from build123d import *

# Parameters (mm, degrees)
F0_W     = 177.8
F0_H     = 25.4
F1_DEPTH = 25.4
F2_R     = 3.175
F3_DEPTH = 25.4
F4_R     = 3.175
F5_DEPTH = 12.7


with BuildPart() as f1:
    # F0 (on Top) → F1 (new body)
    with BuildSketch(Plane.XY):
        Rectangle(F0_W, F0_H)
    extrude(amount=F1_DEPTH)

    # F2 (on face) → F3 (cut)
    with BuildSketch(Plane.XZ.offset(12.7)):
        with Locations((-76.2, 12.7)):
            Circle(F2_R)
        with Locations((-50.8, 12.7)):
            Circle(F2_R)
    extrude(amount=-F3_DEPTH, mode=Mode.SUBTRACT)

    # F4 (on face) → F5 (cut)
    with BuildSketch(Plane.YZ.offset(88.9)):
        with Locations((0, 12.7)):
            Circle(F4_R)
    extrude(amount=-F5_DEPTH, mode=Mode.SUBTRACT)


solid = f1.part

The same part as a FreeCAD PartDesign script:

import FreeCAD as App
import Part
import Sketcher
Q = App.Units.Quantity


def add_polygon(sketch, points):
    """Adds a closed chain of lines whose ends are joined by coincident constraints."""
    first, n = sketch.GeometryCount, len(points)
    for a, b in zip(points, points[1:] + points[:1]):
        sketch.addGeometry(Part.LineSegment(App.Vector(*a, 0), App.Vector(*b, 0)), False)
    for i in range(n):
        sketch.addConstraint(Sketcher.Constraint("Coincident", first + i, 2, first + (i + 1) % n, 1))

doc = App.newDocument("Part")
body = doc.addObject("PartDesign::Body", "Body")

sketch1 = doc.addObject("Sketcher::SketchObject", "Sketch")
body.addObject(sketch1)
sketch1.AttachmentSupport = (doc.XY_Plane, [""])
sketch1.MapMode = "FlatFace"
add_polygon(sketch1, [(-89, 13), (-89, -13), (89, -13), (89, 13)])
sketch1.addConstraint([
    Sketcher.Constraint("Vertical", 0),
    Sketcher.Constraint("Horizontal", 1),
    Sketcher.Constraint("Vertical", 2),
    Sketcher.Constraint("Horizontal", 3),
    Sketcher.Constraint("Symmetric", 0, 2, 2, 2, -1, 1),
    Sketcher.Constraint("DistanceX", 1, 1, 1, 2, Q("7 in")),
    Sketcher.Constraint("DistanceY", 0, 2, 0, 1, Q("1 in")),
])
pad1 = doc.addObject("PartDesign::Pad", "Pad")
body.addObject(pad1)
pad1.Profile = sketch1
pad1.Length = Q("1 in")

sketch2 = doc.addObject("Sketcher::SketchObject", "Sketch001")
body.addObject(sketch2)
sketch2.AttachmentSupport = (doc.XZ_Plane, [""])
sketch2.MapMode = "FlatFace"
sketch2.AttachmentOffset = App.Placement(App.Vector(0, 0, 0.5 * 25.4), App.Rotation())
sketch2.addGeometry([
    Part.Circle(App.Vector(-76.2, 12.7, 0), App.Vector(0, 0, 1), 3.2),
    Part.Circle(App.Vector(-50.8, 12.7, 0), App.Vector(0, 0, 1), 3.2),
], False)
sketch2.addConstraint([
    Sketcher.Constraint("Equal", 0, 1),
    Sketcher.Constraint("Horizontal", 0, 3, 1, 3),
    Sketcher.Constraint("Diameter", 0, Q("0.25 in")),
    Sketcher.Constraint("DistanceX", 0, 3, -1, 1, Q("3 in")),
    Sketcher.Constraint("DistanceX", 1, 3, -1, 1, Q("2 in")),
    Sketcher.Constraint("DistanceY", -1, 1, 0, 3, Q("0.5 in")),
])
pocket1 = doc.addObject("PartDesign::Pocket", "Pocket")
body.addObject(pocket1)
pocket1.Profile = sketch2
pocket1.Length = Q("1 in")

sketch3 = doc.addObject("Sketcher::SketchObject", "Sketch002")
body.addObject(sketch3)
sketch3.AttachmentSupport = (doc.YZ_Plane, [""])
sketch3.MapMode = "FlatFace"
sketch3.AttachmentOffset = App.Placement(App.Vector(0, 0, 3.5 * 25.4), App.Rotation())
sketch3.addGeometry(Part.Circle(App.Vector(0, 12.7, 0), App.Vector(0, 0, 1), 3.2), False)
sketch3.addConstraint([
    Sketcher.Constraint("PointOnObject", 0, 3, -2),
    Sketcher.Constraint("Diameter", 0, Q("0.25 in")),
    Sketcher.Constraint("DistanceY", -1, 1, 0, 3, Q("0.5 in")),
])
pocket2 = doc.addObject("PartDesign::Pocket", "Pocket001")
body.addObject(pocket2)
pocket2.Profile = sketch3
pocket2.Length = Q("0.5 in")

doc.recompute()
